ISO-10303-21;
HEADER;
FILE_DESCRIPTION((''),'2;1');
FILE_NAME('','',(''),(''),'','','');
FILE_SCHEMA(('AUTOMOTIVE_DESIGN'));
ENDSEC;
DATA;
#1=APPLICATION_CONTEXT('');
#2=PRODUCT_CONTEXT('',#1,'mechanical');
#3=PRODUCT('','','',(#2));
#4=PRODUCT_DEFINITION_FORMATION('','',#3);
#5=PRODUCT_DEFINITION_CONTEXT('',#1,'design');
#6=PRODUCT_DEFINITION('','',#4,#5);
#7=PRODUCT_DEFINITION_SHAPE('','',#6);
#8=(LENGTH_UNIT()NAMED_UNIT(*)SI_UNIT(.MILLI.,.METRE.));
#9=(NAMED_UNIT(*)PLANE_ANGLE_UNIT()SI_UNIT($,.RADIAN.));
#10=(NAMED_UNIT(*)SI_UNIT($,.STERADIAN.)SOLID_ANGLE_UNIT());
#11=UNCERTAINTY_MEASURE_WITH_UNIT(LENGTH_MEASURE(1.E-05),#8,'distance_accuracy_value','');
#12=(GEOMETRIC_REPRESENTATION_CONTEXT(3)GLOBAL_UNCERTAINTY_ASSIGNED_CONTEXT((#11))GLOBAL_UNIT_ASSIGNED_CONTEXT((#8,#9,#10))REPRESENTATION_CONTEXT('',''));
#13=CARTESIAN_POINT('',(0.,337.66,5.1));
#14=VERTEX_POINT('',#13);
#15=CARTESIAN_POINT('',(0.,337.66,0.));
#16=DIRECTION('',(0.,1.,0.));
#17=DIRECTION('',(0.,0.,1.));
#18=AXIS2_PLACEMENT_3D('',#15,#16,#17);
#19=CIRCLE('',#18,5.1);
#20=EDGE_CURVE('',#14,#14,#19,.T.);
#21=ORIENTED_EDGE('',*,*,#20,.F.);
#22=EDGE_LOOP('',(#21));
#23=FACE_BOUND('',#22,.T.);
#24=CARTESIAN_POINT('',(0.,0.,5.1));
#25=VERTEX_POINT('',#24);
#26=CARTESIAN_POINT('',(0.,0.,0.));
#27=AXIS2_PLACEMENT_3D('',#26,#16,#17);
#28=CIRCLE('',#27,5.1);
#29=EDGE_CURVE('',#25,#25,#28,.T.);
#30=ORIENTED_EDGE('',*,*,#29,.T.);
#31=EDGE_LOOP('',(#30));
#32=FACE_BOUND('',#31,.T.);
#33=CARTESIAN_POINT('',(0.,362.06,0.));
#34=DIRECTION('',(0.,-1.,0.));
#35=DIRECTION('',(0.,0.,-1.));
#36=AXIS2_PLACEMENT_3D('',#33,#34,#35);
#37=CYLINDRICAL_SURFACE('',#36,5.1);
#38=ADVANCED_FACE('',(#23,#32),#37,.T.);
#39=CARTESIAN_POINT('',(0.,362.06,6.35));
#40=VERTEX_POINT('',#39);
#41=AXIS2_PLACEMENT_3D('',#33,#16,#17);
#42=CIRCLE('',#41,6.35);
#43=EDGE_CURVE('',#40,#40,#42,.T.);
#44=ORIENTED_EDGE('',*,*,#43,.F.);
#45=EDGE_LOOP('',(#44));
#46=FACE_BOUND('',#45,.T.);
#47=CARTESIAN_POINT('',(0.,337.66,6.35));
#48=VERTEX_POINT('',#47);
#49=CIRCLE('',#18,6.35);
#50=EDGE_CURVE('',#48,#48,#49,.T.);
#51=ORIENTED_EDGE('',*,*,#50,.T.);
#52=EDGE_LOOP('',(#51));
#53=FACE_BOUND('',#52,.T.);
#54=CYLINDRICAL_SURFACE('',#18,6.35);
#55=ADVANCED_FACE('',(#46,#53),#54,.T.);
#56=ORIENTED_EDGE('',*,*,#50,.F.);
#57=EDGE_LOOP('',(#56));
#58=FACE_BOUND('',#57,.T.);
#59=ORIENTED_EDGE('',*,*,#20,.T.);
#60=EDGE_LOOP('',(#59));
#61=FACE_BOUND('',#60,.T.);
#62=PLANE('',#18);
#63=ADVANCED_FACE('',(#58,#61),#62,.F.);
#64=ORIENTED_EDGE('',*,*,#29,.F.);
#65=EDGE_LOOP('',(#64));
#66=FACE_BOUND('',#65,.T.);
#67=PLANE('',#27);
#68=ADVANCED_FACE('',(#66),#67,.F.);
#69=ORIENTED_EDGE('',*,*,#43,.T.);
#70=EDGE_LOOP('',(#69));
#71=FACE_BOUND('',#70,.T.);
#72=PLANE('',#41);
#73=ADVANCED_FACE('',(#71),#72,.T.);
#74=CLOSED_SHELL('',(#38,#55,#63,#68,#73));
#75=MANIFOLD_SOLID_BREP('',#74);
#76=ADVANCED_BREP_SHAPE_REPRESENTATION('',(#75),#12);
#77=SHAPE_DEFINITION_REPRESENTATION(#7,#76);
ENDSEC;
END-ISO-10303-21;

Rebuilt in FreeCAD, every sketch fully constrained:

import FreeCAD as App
import Part
import Sketcher
from FreeCAD import Vector
Q = App.Units.Quantity

doc = App.newDocument("Part")
body = doc.addObject("PartDesign::Body", "Body")

sketch1 = body.newObject("Sketcher::SketchObject", "Sketch")
sketch1.AttachmentSupport = (doc.getObject("XZ_Plane"), [""])
sketch1.MapMode = "FlatFace"
sketch1.addGeometry(Part.Circle(Vector(0, 0, 0), Vector(0, 0, 1), 5), False)
sketch1.addConstraint([
    Sketcher.Constraint("Coincident", 0, 3, -1, 1),
    Sketcher.Constraint("Diameter", 0, Q("10.2 mm")),
])
pad1 = body.newObject("PartDesign::Pad", "Pad")
pad1.Profile = sketch1
pad1.Length = 362.06
pad1.Reversed = True

sketch2 = body.newObject("Sketcher::SketchObject", "Sketch001")
sketch2.AttachmentSupport = (doc.getObject("XZ_Plane"), [""])
sketch2.MapMode = "FlatFace"
sketch2.AttachmentOffset = App.Placement(Vector(0, 0, -362.06), App.Rotation())
sketch2.addGeometry(Part.Circle(Vector(0, 0, 0), Vector(0, 0, 1), 6), False)
sketch2.addConstraint([
    Sketcher.Constraint("Coincident", 0, 3, -1, 1),
    Sketcher.Constraint("Diameter", 0, Q("12.7 mm")),
])
pad2 = body.newObject("PartDesign::Pad", "Pad001")
pad2.Profile = sketch2
pad2.Length = 24.4

doc.recompute()
